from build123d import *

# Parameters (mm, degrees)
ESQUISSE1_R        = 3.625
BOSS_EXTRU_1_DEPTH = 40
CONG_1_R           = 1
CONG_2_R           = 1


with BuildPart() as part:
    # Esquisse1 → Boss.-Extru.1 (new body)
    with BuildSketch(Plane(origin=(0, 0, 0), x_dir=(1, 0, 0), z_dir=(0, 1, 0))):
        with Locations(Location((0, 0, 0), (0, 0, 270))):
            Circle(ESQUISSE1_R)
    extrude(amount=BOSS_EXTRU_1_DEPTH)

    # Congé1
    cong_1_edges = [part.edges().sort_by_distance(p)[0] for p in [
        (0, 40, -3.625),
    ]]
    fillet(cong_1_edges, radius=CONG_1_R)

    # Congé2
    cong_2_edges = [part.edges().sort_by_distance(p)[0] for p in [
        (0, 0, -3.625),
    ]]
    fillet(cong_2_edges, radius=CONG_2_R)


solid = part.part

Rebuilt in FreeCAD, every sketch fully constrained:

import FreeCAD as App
import Part
import Sketcher

V = App.Vector


def edges_at(feature, points):
    """Names of the edges that pass closest to the given points."""
    edges = feature.Shape.Edges
    near = lambda p: min(range(len(edges)), key=lambda i: edges[i].distToShape(Part.Vertex(*p))[0])
    return sorted({f"Edge{near(p) + 1}" for p in points})

doc = App.newDocument("Part")
params = doc.addObject("Spreadsheet::Sheet", "Params")
for row, (alias, value) in enumerate([
    ("sketch1_diameter", "7.25 mm"),
    ("pad1_length", "40 mm"),
    ("fillet_radius", "1 mm"),
    ("fillet2_radius", "1 mm"),
], start=1):
    params.set(f"A{row}", alias)
    params.set(f"B{row}", "=" + value)
    params.setAlias(f"B{row}", alias)

body = doc.addObject("PartDesign::Body", "Body")

# Sketch on XZ plane
sketch1 = body.newObject("Sketcher::SketchObject", "Sketch")
sketch1.AttachmentSupport = (doc.getObject("XZ_Plane"), [""])
sketch1.MapMode = "FlatFace"
sketch1.addGeometry(Part.Circle(V(0, 0, 0), V(0, 0, 1), 3.625), False)
sketch1.addConstraint([
    Sketcher.Constraint("Coincident", 0, 3, -1, 1),
    Sketcher.Constraint("Diameter", 0, 7.25),
])
sketch1.setExpression("Constraints[1]", "Params.sketch1_diameter")
pad1 = body.newObject("PartDesign::Pad", "Pad")
pad1.Profile = sketch1
pad1.setExpression("Length", "Params.pad1_length")
pad1.Reversed = True
doc.recompute()

fillet = body.newObject("PartDesign::Fillet", "Fillet")
fillet.Base = (pad1, edges_at(pad1, [(0, 40, -3.625)]))
fillet.setExpression("Radius", "Params.fillet_radius")
doc.recompute()

fillet2 = body.newObject("PartDesign::Fillet", "Fillet001")
fillet2.Base = (fillet, edges_at(fillet, [(0, 0, -3.625)]))
fillet2.setExpression("Radius", "Params.fillet2_radius")

doc.recompute()
